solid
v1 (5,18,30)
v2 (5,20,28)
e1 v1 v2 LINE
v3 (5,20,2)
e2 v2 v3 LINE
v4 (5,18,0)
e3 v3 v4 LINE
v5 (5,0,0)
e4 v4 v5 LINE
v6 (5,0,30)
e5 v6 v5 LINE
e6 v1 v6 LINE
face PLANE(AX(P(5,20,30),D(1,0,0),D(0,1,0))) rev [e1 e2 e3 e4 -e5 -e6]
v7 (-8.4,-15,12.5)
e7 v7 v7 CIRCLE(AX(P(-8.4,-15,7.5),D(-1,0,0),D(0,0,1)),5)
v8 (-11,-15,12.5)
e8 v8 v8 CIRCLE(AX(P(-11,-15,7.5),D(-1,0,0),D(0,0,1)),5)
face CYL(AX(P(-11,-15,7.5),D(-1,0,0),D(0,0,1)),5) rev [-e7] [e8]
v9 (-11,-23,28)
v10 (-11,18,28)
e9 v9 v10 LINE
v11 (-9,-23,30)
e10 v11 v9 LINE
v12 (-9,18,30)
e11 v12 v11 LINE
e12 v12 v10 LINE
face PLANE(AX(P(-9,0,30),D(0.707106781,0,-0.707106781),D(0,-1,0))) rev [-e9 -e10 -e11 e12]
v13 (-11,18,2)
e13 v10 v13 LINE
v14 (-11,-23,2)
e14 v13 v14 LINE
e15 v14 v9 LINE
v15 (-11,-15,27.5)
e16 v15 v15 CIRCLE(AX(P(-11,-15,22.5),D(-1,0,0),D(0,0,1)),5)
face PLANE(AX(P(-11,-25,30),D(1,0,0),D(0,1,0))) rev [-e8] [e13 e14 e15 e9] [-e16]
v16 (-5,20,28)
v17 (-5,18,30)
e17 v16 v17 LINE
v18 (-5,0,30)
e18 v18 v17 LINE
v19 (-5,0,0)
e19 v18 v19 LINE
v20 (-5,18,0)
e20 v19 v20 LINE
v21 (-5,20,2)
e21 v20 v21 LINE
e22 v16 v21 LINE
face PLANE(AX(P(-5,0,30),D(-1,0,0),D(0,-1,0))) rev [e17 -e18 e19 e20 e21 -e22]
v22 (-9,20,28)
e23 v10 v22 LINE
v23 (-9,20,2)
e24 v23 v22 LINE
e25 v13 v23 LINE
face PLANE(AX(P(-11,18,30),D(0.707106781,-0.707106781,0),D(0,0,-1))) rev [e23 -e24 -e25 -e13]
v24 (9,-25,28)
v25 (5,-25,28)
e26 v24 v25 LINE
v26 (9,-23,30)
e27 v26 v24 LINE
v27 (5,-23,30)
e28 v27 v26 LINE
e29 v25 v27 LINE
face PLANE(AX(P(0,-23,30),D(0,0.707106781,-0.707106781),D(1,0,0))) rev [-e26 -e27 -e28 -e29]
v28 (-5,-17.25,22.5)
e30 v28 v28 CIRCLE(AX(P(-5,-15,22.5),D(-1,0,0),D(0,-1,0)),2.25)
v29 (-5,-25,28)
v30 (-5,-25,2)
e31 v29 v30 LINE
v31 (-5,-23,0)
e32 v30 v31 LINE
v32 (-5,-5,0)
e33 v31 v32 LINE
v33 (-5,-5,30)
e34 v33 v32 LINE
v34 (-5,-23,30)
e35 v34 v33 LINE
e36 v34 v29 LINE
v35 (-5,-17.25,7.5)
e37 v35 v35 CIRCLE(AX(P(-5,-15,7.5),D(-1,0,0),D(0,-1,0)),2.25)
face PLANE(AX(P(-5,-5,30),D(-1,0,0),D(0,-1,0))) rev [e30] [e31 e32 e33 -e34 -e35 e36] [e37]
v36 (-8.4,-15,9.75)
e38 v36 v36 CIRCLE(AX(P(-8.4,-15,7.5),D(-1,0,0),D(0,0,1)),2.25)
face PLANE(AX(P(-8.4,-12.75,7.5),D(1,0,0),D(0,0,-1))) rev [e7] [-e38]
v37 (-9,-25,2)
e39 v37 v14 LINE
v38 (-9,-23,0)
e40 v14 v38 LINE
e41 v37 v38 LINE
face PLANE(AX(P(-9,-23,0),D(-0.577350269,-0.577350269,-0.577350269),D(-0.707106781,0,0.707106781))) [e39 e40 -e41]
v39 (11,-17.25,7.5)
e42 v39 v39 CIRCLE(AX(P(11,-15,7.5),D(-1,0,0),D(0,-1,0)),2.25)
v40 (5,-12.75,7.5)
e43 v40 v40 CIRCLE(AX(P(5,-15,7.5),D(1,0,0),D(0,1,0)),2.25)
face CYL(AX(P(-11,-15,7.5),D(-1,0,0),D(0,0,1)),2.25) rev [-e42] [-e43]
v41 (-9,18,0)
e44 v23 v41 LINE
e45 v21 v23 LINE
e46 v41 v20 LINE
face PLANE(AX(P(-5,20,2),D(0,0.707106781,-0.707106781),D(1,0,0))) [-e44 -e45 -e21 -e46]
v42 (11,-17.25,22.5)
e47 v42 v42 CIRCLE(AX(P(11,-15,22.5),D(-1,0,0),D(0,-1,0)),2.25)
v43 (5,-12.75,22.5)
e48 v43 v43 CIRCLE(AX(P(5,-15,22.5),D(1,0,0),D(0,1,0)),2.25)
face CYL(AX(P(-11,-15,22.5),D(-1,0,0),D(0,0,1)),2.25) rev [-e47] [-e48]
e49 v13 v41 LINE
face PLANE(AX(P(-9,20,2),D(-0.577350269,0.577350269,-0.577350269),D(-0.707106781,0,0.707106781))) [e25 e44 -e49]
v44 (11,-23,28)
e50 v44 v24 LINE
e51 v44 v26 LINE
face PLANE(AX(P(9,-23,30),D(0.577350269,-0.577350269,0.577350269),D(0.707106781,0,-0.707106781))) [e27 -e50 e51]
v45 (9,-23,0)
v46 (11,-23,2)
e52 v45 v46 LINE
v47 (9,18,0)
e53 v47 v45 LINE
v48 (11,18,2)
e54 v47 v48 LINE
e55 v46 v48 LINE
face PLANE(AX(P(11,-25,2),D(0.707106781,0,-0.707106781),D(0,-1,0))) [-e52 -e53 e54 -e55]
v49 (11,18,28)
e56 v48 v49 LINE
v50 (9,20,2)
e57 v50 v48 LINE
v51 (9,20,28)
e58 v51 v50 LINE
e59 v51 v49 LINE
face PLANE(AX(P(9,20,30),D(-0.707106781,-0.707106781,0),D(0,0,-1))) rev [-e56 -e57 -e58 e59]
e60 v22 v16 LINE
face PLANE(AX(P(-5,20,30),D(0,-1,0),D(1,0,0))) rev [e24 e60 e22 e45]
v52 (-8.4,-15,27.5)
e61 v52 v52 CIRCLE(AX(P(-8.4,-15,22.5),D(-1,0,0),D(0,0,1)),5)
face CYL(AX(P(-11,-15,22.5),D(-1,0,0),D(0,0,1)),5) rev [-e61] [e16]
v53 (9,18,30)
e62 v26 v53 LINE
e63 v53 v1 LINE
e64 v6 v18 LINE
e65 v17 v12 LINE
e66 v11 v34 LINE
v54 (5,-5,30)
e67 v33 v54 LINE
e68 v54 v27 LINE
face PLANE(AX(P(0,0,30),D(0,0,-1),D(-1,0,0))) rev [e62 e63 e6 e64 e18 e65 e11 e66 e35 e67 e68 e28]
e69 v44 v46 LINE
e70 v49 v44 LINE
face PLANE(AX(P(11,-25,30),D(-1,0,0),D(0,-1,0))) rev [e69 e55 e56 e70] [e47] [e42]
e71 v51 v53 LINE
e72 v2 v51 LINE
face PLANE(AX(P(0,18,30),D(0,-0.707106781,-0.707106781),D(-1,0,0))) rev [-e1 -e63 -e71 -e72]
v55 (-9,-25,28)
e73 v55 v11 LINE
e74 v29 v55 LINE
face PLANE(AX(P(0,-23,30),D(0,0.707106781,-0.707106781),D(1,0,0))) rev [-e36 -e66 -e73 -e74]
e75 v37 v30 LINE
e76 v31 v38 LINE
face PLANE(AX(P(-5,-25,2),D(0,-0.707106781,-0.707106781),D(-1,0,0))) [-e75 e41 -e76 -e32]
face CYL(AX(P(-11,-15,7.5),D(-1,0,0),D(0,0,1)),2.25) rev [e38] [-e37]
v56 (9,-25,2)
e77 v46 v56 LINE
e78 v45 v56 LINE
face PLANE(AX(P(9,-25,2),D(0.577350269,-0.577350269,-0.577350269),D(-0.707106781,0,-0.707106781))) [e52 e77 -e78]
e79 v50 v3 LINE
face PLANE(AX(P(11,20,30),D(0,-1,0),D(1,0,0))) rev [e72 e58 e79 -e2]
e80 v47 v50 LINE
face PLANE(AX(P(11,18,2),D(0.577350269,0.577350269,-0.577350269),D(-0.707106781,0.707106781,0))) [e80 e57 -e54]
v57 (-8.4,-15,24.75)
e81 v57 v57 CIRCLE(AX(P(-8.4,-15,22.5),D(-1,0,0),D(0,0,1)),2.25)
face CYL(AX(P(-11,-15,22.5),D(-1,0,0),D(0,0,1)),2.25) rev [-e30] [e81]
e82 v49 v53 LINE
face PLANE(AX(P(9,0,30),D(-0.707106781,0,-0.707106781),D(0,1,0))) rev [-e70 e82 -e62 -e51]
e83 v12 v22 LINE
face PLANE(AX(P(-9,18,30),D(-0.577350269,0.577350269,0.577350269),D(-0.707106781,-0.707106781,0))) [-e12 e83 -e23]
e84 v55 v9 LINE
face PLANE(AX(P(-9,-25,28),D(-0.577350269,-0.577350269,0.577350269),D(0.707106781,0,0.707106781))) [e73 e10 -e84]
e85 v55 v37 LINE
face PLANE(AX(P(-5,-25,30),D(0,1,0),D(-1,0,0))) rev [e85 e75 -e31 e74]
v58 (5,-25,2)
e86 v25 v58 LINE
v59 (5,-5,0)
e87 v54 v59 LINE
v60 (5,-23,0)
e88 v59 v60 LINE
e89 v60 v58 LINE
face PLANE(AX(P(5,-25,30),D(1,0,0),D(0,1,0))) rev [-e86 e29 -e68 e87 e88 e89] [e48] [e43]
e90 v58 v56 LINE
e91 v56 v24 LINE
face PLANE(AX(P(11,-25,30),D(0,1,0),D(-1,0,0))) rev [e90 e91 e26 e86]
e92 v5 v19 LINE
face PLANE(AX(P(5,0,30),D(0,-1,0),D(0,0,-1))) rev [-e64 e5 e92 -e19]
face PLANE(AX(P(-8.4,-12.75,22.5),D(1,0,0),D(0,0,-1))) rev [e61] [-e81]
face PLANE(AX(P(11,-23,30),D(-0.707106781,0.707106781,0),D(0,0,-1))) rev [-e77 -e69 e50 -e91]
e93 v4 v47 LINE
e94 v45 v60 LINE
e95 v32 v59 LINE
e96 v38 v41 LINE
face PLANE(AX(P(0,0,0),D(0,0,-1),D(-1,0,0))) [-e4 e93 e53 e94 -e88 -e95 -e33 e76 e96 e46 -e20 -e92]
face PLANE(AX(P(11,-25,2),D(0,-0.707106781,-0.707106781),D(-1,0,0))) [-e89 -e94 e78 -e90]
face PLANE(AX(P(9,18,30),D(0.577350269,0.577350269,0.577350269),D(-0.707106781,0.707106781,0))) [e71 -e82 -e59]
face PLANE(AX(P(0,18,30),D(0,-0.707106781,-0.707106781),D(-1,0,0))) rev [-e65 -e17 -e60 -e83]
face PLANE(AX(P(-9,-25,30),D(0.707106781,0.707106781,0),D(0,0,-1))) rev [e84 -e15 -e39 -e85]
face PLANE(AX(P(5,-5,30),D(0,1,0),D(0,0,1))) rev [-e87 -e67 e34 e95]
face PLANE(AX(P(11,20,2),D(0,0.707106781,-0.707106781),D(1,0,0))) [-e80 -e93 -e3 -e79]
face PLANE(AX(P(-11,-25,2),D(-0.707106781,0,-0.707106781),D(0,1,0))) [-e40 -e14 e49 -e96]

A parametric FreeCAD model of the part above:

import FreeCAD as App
import Part
import Sketcher

V = App.Vector


def edges_at(feature, points):
    """Names of the edges that pass closest to the given points."""
    edges = feature.Shape.Edges
    near = lambda p: min(range(len(edges)), key=lambda i: edges[i].distToShape(Part.Vertex(*p))[0])
    return sorted({f"Edge{near(p) + 1}" for p in points})

doc = App.newDocument("Part")
body = doc.addObject("PartDesign::Body", "Body")

sketch1 = body.newObject("Sketcher::SketchObject", "Sketch")
sketch1.AttachmentSupport = (doc.getObject("XY_Plane"), [""])
sketch1.MapMode = "FlatFace"
sketch1.addGeometry([
    Part.LineSegment(V(11, -25, 0), V(11, 20, 0)),
    Part.LineSegment(V(11, 20, 0), V(5, 20, 0)),
    Part.LineSegment(V(5, 20, 0), V(5, 0, 0)),
    Part.LineSegment(V(5, 0, 0), V(-5, 0, 0)),
    Part.LineSegment(V(-5, 0, 0), V(-5, 20, 0)),
    Part.LineSegment(V(-5, 20, 0), V(-11, 20, 0)),
    Part.LineSegment(V(-11, 20, 0), V(-11, -25, 0)),
    Part.LineSegment(V(-11, -25, 0), V(-5, -25, 0)),
    Part.LineSegment(V(-5, -25, 0), V(-5, -5, 0)),
    Part.LineSegment(V(-5, -5, 0), V(5, -5, 0)),
    Part.LineSegment(V(5, -5, 0), V(5, -25, 0)),
    Part.LineSegment(V(5, -25, 0), V(11, -25, 0)),
], False)
sketch1.addConstraint([
    Sketcher.Constraint("Coincident", 0, 2, 1, 1),
    Sketcher.Constraint("Coincident", 1, 2, 2, 1),
    Sketcher.Constraint("Coincident", 2, 2, 3, 1),
    Sketcher.Constraint("Coincident", 3, 2, 4, 1),
    Sketcher.Constraint("Coincident", 4, 2, 5, 1),
    Sketcher.Constraint("Coincident", 5, 2, 6, 1),
    Sketcher.Constraint("Coincident", 6, 2, 7, 1),
    Sketcher.Constraint("Coincident", 7, 2, 8, 1),
    Sketcher.Constraint("Coincident", 8, 2, 9, 1),
    Sketcher.Constraint("Coincident", 9, 2, 10, 1),
    Sketcher.Constraint("Coincident", 10, 2, 11, 1),
    Sketcher.Constraint("Coincident", 11, 2, 0, 1),
    Sketcher.Constraint("Vertical", 0),
    Sketcher.Constraint("Horizontal", 1),
    Sketcher.Constraint("Vertical", 2),
    Sketcher.Constraint("Horizontal", 3),
    Sketcher.Constraint("Vertical", 4),
    Sketcher.Constraint("Horizontal", 5),
    Sketcher.Constraint("Vertical", 6),
    Sketcher.Constraint("Horizontal", 7),
    Sketcher.Constraint("Vertical", 8),
    Sketcher.Constraint("Horizontal", 9),
    Sketcher.Constraint("Vertical", 10),
    Sketcher.Constraint("Horizontal", 11),
    Sketcher.Constraint("Symmetric", 2, 2, 3, 2, -1, 1),
    Sketcher.Constraint("Symmetric", 0, 2, 5, 2, -2),
    Sketcher.Constraint("Symmetric", 7, 2, 10, 2, -2),
    Sketcher.Constraint("Vertical", 4, 2, 7, 2),
    Sketcher.Constraint("Equal", 4, 8),
    Sketcher.Constraint("DistanceX", 1, 2, 1, 1, 6.0),
    Sketcher.Constraint("DistanceX", 3, 2, 3, 1, 10.0),
    Sketcher.Constraint("DistanceY", 0, 1, 0, 2, 45.0),
    Sketcher.Constraint("DistanceY", 2, 2, 2, 1, 20.0),
])
pad1 = body.newObject("PartDesign::Pad", "Pad")
pad1.Profile = sketch1
pad1.Length = 30

sketch2 = body.newObject("Sketcher::SketchObject", "Sketch001")
sketch2.AttachmentSupport = (doc.getObject("YZ_Plane"), [""])
sketch2.MapMode = "FlatFace"
sketch2.AttachmentOffset = App.Placement(V(0, 0, -11), App.Rotation())
sketch2.addGeometry([
    Part.Circle(V(-15, 22.5, 0), V(0, 0, 1), 2.25),
    Part.Circle(V(-15, 7.5, 0), V(0, 0, 1), 2.25),
], False)
sketch2.addConstraint([
    Sketcher.Constraint("Equal", 0, 1),
    Sketcher.Constraint("Vertical", 0, 3, 1, 3),
    Sketcher.Constraint("Diameter", 0, 4.5),
    Sketcher.Constraint("DistanceX", 0, 3, -1, 1, 15.0),
    Sketcher.Constraint("DistanceY", 1, 3, 0, 3, 15.0),
    Sketcher.Constraint("DistanceY", -1, 1, 0, 3, 22.5),
])
doc.recompute()
hole = body.newObject("PartDesign::Hole", "Hole")
hole.Profile = sketch2
hole.ThreadType = "None"
hole.Diameter = 4.5
hole.DepthType = "Dimension"
hole.Depth = 30
hole.DrillPoint = "Angled"
hole.DrillPointAngle = 118
hole.HoleCutType = "Counterbore"
hole.HoleCutDiameter = 10
hole.HoleCutDepth = 2.6
hole.Reversed = True
doc.recompute()

chamfer = body.newObject("PartDesign::Chamfer", "Chamfer")
chamfer.Base = (hole, edges_at(hole, [
    (-8, -25, 30),
    (8, 20, 0),
    (11, -2.5, 0),
    (8, -25, 0),
    (-8, -25, 0),
    (-11, -2.5, 0),
    (-8, 20, 0),
    (11, 20, 15),
    (11, -25, 15),
    (-11, -25, 15),
    (-11, 20, 15),
    (8, -25, 30),
    (11, -2.5, 30),
    (8, 20, 30),
    (-8, 20, 30),
    (-11, -2.5, 30),
]))
chamfer.Size = 2

doc.recompute()
